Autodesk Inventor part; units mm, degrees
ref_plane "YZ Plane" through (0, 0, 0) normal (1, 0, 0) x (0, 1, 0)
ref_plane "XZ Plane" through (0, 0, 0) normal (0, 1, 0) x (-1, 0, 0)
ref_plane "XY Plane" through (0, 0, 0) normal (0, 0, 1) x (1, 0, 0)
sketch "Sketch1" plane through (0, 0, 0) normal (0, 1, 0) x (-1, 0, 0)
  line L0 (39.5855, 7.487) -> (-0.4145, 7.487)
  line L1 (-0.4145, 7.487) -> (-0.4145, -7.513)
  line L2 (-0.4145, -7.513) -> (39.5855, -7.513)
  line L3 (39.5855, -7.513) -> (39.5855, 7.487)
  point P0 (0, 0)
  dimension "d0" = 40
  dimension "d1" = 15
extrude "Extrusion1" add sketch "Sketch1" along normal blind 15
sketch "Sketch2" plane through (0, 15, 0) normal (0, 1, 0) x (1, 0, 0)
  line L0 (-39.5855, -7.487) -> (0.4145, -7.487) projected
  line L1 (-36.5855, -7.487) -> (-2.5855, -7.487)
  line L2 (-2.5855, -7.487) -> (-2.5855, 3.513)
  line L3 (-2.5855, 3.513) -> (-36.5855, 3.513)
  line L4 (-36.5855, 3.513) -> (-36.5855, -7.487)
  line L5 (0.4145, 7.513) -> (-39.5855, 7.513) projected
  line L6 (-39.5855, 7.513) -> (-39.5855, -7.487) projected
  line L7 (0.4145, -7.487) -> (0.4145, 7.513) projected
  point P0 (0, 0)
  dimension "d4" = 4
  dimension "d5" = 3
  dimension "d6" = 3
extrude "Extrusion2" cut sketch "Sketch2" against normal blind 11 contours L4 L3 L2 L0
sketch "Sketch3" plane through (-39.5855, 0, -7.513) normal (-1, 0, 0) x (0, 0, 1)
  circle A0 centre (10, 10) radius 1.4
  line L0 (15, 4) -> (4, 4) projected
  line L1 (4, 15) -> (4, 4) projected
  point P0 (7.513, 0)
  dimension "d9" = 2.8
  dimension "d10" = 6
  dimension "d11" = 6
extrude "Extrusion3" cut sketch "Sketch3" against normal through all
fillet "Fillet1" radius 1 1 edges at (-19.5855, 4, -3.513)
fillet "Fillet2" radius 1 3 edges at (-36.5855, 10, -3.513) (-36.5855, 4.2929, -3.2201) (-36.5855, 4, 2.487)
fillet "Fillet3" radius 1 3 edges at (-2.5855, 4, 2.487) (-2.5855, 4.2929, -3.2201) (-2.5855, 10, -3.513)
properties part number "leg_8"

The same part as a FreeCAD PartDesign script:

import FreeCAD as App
import Part
import Sketcher

V = App.Vector
Q = App.Units.Quantity


def edges_at(feature, points):
    """Names of the edges that pass closest to the given points."""
    edges = feature.Shape.Edges
    near = lambda p: min(range(len(edges)), key=lambda i: edges[i].distToShape(Part.Vertex(*p))[0])
    return sorted({f"Edge{near(p) + 1}" for p in points})


def add_polygon(sketch, points):
    """Adds a closed chain of lines whose ends are joined by coincident constraints."""
    first, n = sketch.GeometryCount, len(points)
    for a, b in zip(points, points[1:] + points[:1]):
        sketch.addGeometry(Part.LineSegment(App.Vector(*a, 0), App.Vector(*b, 0)), False)
    for i in range(n):
        sketch.addConstraint(Sketcher.Constraint("Coincident", first + i, 2, first + (i + 1) % n, 1))

doc = App.newDocument("Part")
body = doc.addObject("PartDesign::Body", "Body")

# Sketch on XZ plane
sketch1 = body.newObject("Sketcher::SketchObject", "Sketch")
sketch1.AttachmentSupport = (doc.getObject("XZ_Plane"), [""])
sketch1.MapMode = "FlatFace"
add_polygon(sketch1, [(-40, -8), (-40, 7), (0, 7), (0, -8)])  # lines 0-3
sketch1.addConstraint(Sketcher.Constraint("Vertical", 0))
sketch1.addConstraint(Sketcher.Constraint("Horizontal", 1))
sketch1.addConstraint(Sketcher.Constraint("Vertical", 2))
sketch1.addConstraint(Sketcher.Constraint("Horizontal", 3))
sketch1.addConstraint(Sketcher.Constraint("DistanceX", 1, 1, 1, 2, Q("40 mm")))
sketch1.addConstraint(Sketcher.Constraint("DistanceY", 0, 1, 0, 2, Q("15 mm")))
sketch1.addConstraint(Sketcher.Constraint("DistanceY", -1, 1, 0, 2, Q("7.487 mm")))
sketch1.addConstraint(Sketcher.Constraint("DistanceX", 0, 2, -1, 1, Q("39.5855 mm")))
pad1 = body.newObject("PartDesign::Pad", "Pad")
pad1.Profile = sketch1
pad1.Length = 15
pad1.Reversed = True

# Sketch on XZ plane
sketch2 = body.newObject("Sketcher::SketchObject", "Sketch001")
sketch2.AttachmentSupport = (doc.getObject("XZ_Plane"), [""])
sketch2.MapMode = "FlatFace"
sketch2.AttachmentOffset = App.Placement(V(0, 0, -15), App.Rotation())
add_polygon(sketch2, [(-37, -4), (-37, 7), (-3, 7), (-3, -4)])  # lines 0-3
sketch2.addConstraint(Sketcher.Constraint("Vertical", 0))
sketch2.addConstraint(Sketcher.Constraint("Horizontal", 1))
sketch2.addConstraint(Sketcher.Constraint("Vertical", 2))
sketch2.addConstraint(Sketcher.Constraint("Horizontal", 3))
sketch2.addConstraint(Sketcher.Constraint("DistanceX", 1, 1, 1, 2, Q("34 mm")))
sketch2.addConstraint(Sketcher.Constraint("DistanceY", 0, 1, 0, 2, Q("11 mm")))
sketch2.addConstraint(Sketcher.Constraint("DistanceY", -1, 1, 0, 2, Q("7.487 mm")))
sketch2.addConstraint(Sketcher.Constraint("DistanceX", 0, 2, -1, 1, Q("36.5855 mm")))
pocket1 = body.newObject("PartDesign::Pocket", "Pocket")
pocket1.Profile = sketch2
pocket1.Length = 11
pocket1.Reversed = True

# Sketch on YZ plane
sketch3 = body.newObject("Sketcher::SketchObject", "Sketch002")
sketch3.AttachmentSupport = (doc.getObject("YZ_Plane"), [""])
sketch3.MapMode = "FlatFace"
sketch3.AttachmentOffset = App.Placement(V(0, 0, -39.5855), App.Rotation())
sketch3.addGeometry(Part.Circle(V(10, 2.5, 0), V(0, 0, 1), 1.4), False)
sketch3.addConstraint(Sketcher.Constraint("Diameter", 0, Q("2.8 mm")))
sketch3.addConstraint(Sketcher.Constraint("DistanceX", -1, 1, 0, 3, Q("10 mm")))
sketch3.addConstraint(Sketcher.Constraint("DistanceY", -1, 1, 0, 3, Q("2.487 mm")))
pocket2 = body.newObject("PartDesign::Pocket", "Pocket001")
pocket2.Profile = sketch3
pocket2.Type = "ThroughAll"
pocket2.Reversed = True
doc.recompute()

fillet = body.newObject("PartDesign::Fillet", "Fillet")
fillet.Base = (pocket2, edges_at(pocket2, [(-19.585, 4, -3.513)]))
fillet.Radius = 1
doc.recompute()

fillet2 = body.newObject("PartDesign::Fillet", "Fillet001")
fillet2.Base = (fillet, edges_at(fillet, [(-36.586, 10, -3.513), (-36.586, 4.293, -3.22), (-36.586, 4, 2.487)]))
fillet2.Radius = 1
doc.recompute()

fillet3 = body.newObject("PartDesign::Fillet", "Fillet002")
fillet3.Base = (fillet2, edges_at(fillet2, [(-2.586, 4, 2.487), (-2.586, 4.293, -3.22), (-2.586, 10, -3.513)]))
fillet3.Radius = 1

doc.recompute()
